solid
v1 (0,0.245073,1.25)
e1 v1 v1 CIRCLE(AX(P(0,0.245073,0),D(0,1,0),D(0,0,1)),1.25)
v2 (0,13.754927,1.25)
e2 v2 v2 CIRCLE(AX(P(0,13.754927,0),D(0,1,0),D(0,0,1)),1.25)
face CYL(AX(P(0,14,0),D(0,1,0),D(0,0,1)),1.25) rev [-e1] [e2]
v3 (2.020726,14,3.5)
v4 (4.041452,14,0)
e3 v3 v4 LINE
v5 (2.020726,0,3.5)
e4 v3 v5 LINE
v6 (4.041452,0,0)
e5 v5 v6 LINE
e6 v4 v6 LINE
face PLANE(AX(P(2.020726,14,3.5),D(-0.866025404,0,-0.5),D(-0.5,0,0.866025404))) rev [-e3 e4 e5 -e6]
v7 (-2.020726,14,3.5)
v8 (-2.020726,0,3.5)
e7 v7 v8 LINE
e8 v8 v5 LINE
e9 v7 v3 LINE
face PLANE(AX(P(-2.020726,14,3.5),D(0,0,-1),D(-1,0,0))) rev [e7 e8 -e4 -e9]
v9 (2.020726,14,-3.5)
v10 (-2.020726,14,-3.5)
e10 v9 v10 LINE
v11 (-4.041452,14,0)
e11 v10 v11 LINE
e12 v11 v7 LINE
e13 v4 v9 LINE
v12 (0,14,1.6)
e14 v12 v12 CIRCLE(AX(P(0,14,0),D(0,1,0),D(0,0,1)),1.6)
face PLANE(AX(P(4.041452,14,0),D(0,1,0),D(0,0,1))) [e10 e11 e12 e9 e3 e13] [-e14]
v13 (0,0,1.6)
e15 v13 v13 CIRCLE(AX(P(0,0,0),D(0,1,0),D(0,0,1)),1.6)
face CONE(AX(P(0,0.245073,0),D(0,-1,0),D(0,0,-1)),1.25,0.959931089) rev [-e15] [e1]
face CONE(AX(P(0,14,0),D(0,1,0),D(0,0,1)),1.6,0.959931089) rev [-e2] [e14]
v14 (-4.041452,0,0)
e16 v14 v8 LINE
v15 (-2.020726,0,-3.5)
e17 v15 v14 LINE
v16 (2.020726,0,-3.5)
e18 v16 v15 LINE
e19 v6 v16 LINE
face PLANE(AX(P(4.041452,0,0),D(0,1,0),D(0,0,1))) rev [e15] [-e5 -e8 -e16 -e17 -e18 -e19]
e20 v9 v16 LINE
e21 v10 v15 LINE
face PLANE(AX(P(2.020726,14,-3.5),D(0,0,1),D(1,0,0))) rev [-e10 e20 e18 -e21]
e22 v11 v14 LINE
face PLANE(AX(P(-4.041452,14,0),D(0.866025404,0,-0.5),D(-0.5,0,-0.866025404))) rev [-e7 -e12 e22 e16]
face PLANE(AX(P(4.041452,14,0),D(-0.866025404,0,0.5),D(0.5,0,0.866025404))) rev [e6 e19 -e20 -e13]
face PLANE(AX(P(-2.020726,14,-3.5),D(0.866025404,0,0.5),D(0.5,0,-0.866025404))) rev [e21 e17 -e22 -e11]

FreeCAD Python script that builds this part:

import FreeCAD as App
import Part
import Sketcher
from FreeCAD import Vector
Q = App.Units.Quantity

doc = App.newDocument("Part")
body = doc.addObject("PartDesign::Body", "Body")

# Sketch on XZ plane
sketch1 = doc.addObject("Sketcher::SketchObject", "Sketch")
body.addObject(sketch1)
sketch1.AttachmentSupport = (doc.XZ_Plane, [""])
sketch1.MapMode = "FlatFace"
sketch1.addGeometry(Part.LineSegment(Vector(4, 0, 0), Vector(2, -3.5, 0)), False)
sketch1.addGeometry(Part.LineSegment(Vector(2, -3.5, 0), Vector(-2, -3.5, 0)), False)
sketch1.addGeometry(Part.LineSegment(Vector(-2, -3.5, 0), Vector(-4, 0, 0)), False)
sketch1.addGeometry(Part.LineSegment(Vector(-4, 0, 0), Vector(-2, 3.5, 0)), False)
sketch1.addGeometry(Part.LineSegment(Vector(-2, 3.5, 0), Vector(2, 3.5, 0)), False)
sketch1.addGeometry(Part.LineSegment(Vector(2, 3.5, 0), Vector(4, 0, 0)), False)
sketch1.addConstraint(Sketcher.Constraint("Coincident", 0, 2, 1, 1))
sketch1.addConstraint(Sketcher.Constraint("Coincident", 1, 2, 2, 1))
sketch1.addConstraint(Sketcher.Constraint("Coincident", 2, 2, 3, 1))
sketch1.addConstraint(Sketcher.Constraint("Coincident", 3, 2, 4, 1))
sketch1.addConstraint(Sketcher.Constraint("Coincident", 4, 2, 5, 1))
sketch1.addConstraint(Sketcher.Constraint("Coincident", 5, 2, 0, 1))
sketch1.addConstraint(Sketcher.Constraint("Horizontal", 1))
sketch1.addConstraint(Sketcher.Constraint("Horizontal", 4))
sketch1.addConstraint(Sketcher.Constraint("Symmetric", 0, 2, 3, 2, -1, 1))
sketch1.addConstraint(Sketcher.Constraint("Symmetric", 2, 2, 5, 2, -1, 1))
sketch1.addConstraint(Sketcher.Constraint("PointOnObject", 2, 2, -1))
sketch1.addConstraint(Sketcher.Constraint("Parallel", 2, 5))
sketch1.addConstraint(Sketcher.Constraint("Vertical", 1, 2, 3, 2))
sketch1.addConstraint(Sketcher.Constraint("Angle", 0, Q("-120 deg")))
sketch1.addConstraint(Sketcher.Constraint("DistanceY", 1, 2, 3, 2, Q("7 mm")))
sketch1.addConstraint(Sketcher.Constraint("DistanceX", 1, 2, 1, 1, Q("4.041452 mm")))
pad1 = doc.addObject("PartDesign::Pad", "Pad")
body.addObject(pad1)
pad1.Profile = sketch1
pad1.Length = 14
pad1.Reversed = True

# Sketch on YZ plane
sketch2 = doc.addObject("Sketcher::SketchObject", "Sketch001")
body.addObject(sketch2)
sketch2.AttachmentSupport = (doc.YZ_Plane, [""])
sketch2.MapMode = "FlatFace"
sketch2.addGeometry(Part.LineSegment(Vector(0, 0, 0), Vector(14, 0, 0)), False)
sketch2.addGeometry(Part.LineSegment(Vector(14, 0, 0), Vector(14, 1.6, 0)), False)
sketch2.addGeometry(Part.LineSegment(Vector(14, 1.6, 0), Vector(13.75, 1.25, 0)), False)
sketch2.addGeometry(Part.LineSegment(Vector(13.75, 1.25, 0), Vector(0.25, 1.25, 0)), False)
sketch2.addGeometry(Part.LineSegment(Vector(0.25, 1.25, 0), Vector(0, 1.6, 0)), False)
sketch2.addGeometry(Part.LineSegment(Vector(0, 1.6, 0), Vector(0, 0, 0)), False)
sketch2.addConstraint(Sketcher.Constraint("Coincident", 0, 2, 1, 1))
sketch2.addConstraint(Sketcher.Constraint("Coincident", 1, 2, 2, 1))
sketch2.addConstraint(Sketcher.Constraint("Coincident", 2, 2, 3, 1))
sketch2.addConstraint(Sketcher.Constraint("Coincident", 3, 2, 4, 1))
sketch2.addConstraint(Sketcher.Constraint("Coincident", 4, 2, 5, 1))
sketch2.addConstraint(Sketcher.Constraint("Coincident", 5, 2, 0, 1))
sketch2.addConstraint(Sketcher.Constraint("Horizontal", 0))
sketch2.addConstraint(Sketcher.Constraint("Vertical", 1))
sketch2.addConstraint(Sketcher.Constraint("Horizontal", 3))
sketch2.addConstraint(Sketcher.Constraint("Vertical", 5))
sketch2.addConstraint(Sketcher.Constraint("Coincident", 5, 2, -1, 1))
sketch2.addConstraint(Sketcher.Constraint("Horizontal", 1, 2, 4, 2))
sketch2.addConstraint(Sketcher.Constraint("Equal", 2, 4))
sketch2.addConstraint(Sketcher.Constraint("DistanceX", 0, 1, 0, 2, Q("14 mm")))
sketch2.addConstraint(Sketcher.Constraint("Angle", 2, Q("-125 deg")))
sketch2.addConstraint(Sketcher.Constraint("DistanceY", 1, 1, 1, 2, Q("1.6 mm")))
sketch2.addConstraint(Sketcher.Constraint("DistanceY", -1, 1, 2, 2, Q("1.25 mm")))
groove = doc.addObject("PartDesign::Groove", "Groove")
body.addObject(groove)
groove.Profile = sketch2
groove.ReferenceAxis = (sketch2, ["H_Axis"])
groove.Angle = 360

doc.recompute()
